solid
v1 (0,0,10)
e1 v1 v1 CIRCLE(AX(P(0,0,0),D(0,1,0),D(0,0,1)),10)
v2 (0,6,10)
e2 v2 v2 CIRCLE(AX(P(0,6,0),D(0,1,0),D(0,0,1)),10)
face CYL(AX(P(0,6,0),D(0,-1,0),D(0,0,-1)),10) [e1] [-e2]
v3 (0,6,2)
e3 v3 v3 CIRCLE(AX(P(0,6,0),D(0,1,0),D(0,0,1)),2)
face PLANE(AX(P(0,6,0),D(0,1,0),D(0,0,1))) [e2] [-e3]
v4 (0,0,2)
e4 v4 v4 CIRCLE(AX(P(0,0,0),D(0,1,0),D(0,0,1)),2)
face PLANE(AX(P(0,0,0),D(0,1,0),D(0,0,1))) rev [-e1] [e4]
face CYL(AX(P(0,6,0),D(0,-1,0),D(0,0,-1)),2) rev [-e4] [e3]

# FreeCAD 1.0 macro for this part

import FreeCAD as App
import Part
import Sketcher

doc = App.newDocument("Part")
body = doc.addObject("PartDesign::Body", "Body")

sketch1 = doc.addObject("Sketcher::SketchObject", "Sketch")
body.addObject(sketch1)
sketch1.AttachmentSupport = (doc.XZ_Plane, [""])
sketch1.MapMode = "FlatFace"
sketch1.addGeometry([
    Part.Circle(App.Vector(0, 0, 0), App.Vector(0, 0, 1), 10),
    Part.Circle(App.Vector(0, 0, 0), App.Vector(0, 0, 1), 2),
], False)
sketch1.addConstraint([
    Sketcher.Constraint("Coincident", 0, 3, -1, 1),
    Sketcher.Constraint("Coincident", 1, 3, -1, 1),
    Sketcher.Constraint("Diameter", 0, 20.0),
    Sketcher.Constraint("Diameter", 1, 4.0),
])
pad1 = doc.addObject("PartDesign::Pad", "Pad")
body.addObject(pad1)
pad1.Profile = sketch1
pad1.Length = 6
pad1.Reversed = True

doc.recompute()
